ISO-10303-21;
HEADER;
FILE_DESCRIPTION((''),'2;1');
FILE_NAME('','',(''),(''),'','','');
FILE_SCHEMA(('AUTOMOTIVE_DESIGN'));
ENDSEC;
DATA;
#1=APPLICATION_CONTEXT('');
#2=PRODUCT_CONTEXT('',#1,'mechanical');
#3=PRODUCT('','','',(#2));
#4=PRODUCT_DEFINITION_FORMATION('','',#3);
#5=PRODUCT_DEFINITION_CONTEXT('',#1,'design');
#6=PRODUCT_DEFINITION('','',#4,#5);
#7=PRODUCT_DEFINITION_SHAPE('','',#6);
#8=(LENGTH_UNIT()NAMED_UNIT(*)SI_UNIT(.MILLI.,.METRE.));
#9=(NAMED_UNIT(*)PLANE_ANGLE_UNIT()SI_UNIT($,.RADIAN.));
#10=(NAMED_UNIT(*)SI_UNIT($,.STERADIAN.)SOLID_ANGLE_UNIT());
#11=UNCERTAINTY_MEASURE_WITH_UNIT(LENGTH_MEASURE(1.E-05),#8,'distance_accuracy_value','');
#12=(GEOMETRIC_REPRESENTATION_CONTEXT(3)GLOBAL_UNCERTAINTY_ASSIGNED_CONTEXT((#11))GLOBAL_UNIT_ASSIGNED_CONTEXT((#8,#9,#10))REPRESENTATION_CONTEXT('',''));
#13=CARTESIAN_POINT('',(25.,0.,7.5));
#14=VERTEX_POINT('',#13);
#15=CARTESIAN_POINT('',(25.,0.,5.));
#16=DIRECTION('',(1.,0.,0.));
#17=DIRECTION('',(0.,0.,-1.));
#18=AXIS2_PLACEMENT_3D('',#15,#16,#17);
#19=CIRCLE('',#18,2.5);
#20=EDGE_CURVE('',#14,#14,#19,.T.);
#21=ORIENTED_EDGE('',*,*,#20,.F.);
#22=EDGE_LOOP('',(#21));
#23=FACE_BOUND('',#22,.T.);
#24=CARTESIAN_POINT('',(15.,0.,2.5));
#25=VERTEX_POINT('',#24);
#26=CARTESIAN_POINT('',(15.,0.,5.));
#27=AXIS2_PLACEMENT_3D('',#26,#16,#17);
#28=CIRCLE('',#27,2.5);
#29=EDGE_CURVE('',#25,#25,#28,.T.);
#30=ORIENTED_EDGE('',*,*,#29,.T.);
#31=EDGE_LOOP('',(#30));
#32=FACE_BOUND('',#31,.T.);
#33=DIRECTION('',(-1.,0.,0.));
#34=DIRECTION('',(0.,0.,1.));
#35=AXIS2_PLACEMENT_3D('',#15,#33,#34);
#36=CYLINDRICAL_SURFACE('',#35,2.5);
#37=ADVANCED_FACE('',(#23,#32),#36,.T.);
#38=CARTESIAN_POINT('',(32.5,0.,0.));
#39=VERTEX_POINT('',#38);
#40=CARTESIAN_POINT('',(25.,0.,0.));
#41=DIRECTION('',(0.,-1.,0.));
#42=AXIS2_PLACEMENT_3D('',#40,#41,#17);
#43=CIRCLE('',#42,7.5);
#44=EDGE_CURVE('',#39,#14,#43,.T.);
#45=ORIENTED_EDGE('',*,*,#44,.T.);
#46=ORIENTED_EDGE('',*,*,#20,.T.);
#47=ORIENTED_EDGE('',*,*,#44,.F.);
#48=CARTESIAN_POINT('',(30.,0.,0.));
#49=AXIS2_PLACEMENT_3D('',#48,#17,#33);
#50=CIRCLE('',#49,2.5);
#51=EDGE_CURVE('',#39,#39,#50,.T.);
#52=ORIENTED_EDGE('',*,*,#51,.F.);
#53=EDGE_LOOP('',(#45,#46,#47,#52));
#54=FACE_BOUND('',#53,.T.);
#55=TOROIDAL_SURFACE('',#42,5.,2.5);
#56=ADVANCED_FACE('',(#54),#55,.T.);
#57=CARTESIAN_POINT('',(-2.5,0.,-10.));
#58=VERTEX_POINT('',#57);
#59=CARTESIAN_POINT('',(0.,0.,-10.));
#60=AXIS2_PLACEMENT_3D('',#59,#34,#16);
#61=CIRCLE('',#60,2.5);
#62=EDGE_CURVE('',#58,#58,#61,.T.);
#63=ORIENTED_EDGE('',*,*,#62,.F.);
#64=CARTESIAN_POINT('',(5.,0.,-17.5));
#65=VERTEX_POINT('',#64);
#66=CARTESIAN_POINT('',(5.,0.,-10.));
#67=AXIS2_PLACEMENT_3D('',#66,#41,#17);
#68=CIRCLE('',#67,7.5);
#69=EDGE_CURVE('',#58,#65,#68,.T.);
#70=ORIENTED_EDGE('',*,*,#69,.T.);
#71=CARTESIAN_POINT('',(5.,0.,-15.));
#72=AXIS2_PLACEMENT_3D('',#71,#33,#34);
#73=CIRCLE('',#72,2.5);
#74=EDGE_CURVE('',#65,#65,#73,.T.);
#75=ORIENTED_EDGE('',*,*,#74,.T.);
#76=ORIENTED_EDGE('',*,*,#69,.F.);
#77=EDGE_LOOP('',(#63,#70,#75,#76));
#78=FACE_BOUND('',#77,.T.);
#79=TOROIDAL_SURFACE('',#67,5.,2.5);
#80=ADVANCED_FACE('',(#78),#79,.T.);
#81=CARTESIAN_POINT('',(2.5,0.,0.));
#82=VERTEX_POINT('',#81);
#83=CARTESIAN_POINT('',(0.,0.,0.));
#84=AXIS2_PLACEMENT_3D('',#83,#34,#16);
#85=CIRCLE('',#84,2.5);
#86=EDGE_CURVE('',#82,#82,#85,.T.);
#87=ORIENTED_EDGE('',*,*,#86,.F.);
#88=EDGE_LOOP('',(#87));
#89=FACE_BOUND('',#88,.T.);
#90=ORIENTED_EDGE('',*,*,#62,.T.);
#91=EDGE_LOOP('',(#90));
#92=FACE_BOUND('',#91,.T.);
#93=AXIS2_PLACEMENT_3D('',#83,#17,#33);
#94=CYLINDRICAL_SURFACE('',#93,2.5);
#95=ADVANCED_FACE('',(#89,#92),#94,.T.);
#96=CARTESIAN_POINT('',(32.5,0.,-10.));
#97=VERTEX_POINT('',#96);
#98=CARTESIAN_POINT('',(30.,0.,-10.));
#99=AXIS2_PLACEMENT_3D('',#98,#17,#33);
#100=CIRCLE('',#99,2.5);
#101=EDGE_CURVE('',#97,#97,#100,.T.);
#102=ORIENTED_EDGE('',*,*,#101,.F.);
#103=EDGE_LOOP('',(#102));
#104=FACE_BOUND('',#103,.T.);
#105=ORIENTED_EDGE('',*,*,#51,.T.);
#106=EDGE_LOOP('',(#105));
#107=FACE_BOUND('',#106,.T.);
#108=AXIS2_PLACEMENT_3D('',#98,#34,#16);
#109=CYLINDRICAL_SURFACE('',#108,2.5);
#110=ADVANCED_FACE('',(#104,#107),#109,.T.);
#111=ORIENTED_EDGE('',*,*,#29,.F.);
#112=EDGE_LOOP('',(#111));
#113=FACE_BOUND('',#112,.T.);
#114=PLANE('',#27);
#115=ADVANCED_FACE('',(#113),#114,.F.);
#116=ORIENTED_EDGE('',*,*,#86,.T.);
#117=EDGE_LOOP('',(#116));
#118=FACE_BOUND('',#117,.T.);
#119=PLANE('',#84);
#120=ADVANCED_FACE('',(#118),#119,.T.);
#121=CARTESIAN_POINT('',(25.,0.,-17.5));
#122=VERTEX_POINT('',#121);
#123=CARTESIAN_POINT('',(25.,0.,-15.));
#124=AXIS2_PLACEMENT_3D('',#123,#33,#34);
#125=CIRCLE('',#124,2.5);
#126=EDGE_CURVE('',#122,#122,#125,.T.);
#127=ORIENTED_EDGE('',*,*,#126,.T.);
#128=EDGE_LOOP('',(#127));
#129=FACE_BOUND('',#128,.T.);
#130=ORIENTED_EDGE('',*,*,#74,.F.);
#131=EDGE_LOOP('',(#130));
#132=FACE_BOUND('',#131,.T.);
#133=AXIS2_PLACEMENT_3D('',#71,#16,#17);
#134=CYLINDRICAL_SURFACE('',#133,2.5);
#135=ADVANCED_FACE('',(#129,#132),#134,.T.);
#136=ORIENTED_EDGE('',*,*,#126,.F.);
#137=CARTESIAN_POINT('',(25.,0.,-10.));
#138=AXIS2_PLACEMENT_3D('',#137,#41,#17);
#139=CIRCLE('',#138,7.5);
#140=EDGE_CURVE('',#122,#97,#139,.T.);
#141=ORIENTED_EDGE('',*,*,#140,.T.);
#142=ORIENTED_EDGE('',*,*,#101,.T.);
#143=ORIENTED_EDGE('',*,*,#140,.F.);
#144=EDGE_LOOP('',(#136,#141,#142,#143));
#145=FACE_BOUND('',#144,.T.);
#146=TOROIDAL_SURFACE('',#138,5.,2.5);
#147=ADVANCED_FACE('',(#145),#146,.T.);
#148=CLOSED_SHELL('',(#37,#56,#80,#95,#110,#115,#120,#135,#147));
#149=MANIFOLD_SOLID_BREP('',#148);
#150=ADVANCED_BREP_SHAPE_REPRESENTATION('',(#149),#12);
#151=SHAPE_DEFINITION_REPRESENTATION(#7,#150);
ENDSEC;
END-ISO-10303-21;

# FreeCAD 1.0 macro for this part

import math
import FreeCAD as App
import Part
import Sketcher
Q = App.Units.Quantity

doc = App.newDocument("Part")
params = doc.addObject("Spreadsheet::Sheet", "Params")
for row, (alias, value) in enumerate([
    ("sketch1_diameter", "5 mm"),
    ("sketch2_radius", "5 mm"),
    ("sketch2_width", "20 mm"),
    ("sketch2_width2", "10 mm"),
], start=1):
    params.set(f"A{row}", alias)
    params.set(f"B{row}", "=" + value)
    params.setAlias(f"B{row}", alias)

body = doc.addObject("PartDesign::Body", "Body")

sketch1 = body.newObject("Sketcher::SketchObject", "Sketch")
sketch1.AttachmentSupport = (doc.getObject("XY_Plane"), [""])
sketch1.MapMode = "FlatFace"
sketch1.addGeometry(Part.Circle(App.Vector(0, 0, 0), App.Vector(0, 0, 1), 2.5), False)
sketch1.addConstraint([
    Sketcher.Constraint("Coincident", 0, 3, -1, 1),
    Sketcher.Constraint("Diameter", 0, Q("5 mm")),
])
sketch1.setExpression("Constraints[1]", "Params.sketch1_diameter")

sketch2 = body.newObject("Sketcher::SketchObject", "Sketch001")
sketch2.AttachmentSupport = (doc.getObject("XZ_Plane"), [""])
sketch2.MapMode = "FlatFace"
sketch2.addGeometry([
    Part.LineSegment(App.Vector(0, 0, 0), App.Vector(0, -10, 0)),
    Part.ArcOfCircle(Part.Circle(App.Vector(5, -10, 0), App.Vector(0, 0, 1), 5), math.radians(180), math.radians(270)),
    Part.LineSegment(App.Vector(5, -15, 0), App.Vector(25, -15, 0)),
    Part.ArcOfCircle(Part.Circle(App.Vector(25, -10, 0), App.Vector(0, 0, 1), 5), math.radians(-90), math.radians(0)),
    Part.LineSegment(App.Vector(30, -10, 0), App.Vector(30, 0, 0)),
    Part.ArcOfCircle(Part.Circle(App.Vector(25, 0, 0), App.Vector(0, 0, 1), 5), math.radians(0), math.radians(90)),
    Part.LineSegment(App.Vector(25, 5, 0), App.Vector(15, 5, 0)),
], False)
sketch2.addConstraint([
    Sketcher.Constraint("Tangent", 0, 2, 1, 1),
    Sketcher.Constraint("Tangent", 1, 2, 2, 1),
    Sketcher.Constraint("Tangent", 2, 2, 3, 1),
    Sketcher.Constraint("Tangent", 3, 2, 4, 1),
    Sketcher.Constraint("Tangent", 4, 2, 5, 1),
    Sketcher.Constraint("Tangent", 5, 2, 6, 1),
    Sketcher.Constraint("Vertical", 0),
    Sketcher.Constraint("Horizontal", 2),
    Sketcher.Constraint("Vertical", 4),
    Sketcher.Constraint("Horizontal", 6),
    Sketcher.Constraint("Coincident", 0, 1, -1, 1),
    Sketcher.Constraint("Equal", 1, 3),
    Sketcher.Constraint("Equal", 3, 5),
    Sketcher.Constraint("PointOnObject", 5, 3, -1),
    Sketcher.Constraint("Equal", 6, 0),
    Sketcher.Constraint("Radius", 1, Q("5 mm")),
    Sketcher.Constraint("DistanceX", 2, 1, 2, 2, Q("20 mm")),
    Sketcher.Constraint("DistanceX", 6, 2, 6, 1, Q("10 mm")),
])
sketch2.setExpression("Constraints[15]", "Params.sketch2_radius")
sketch2.setExpression("Constraints[16]", "Params.sketch2_width")
sketch2.setExpression("Constraints[17]", "Params.sketch2_width2")
doc.recompute()

additivepipe = body.newObject("PartDesign::AdditivePipe", "AdditivePipe")
additivepipe.Profile = sketch1
additivepipe.Spine = (sketch2, ["Edge1", "Edge2", "Edge3", "Edge4", "Edge5", "Edge6", "Edge7"])

doc.recompute()
